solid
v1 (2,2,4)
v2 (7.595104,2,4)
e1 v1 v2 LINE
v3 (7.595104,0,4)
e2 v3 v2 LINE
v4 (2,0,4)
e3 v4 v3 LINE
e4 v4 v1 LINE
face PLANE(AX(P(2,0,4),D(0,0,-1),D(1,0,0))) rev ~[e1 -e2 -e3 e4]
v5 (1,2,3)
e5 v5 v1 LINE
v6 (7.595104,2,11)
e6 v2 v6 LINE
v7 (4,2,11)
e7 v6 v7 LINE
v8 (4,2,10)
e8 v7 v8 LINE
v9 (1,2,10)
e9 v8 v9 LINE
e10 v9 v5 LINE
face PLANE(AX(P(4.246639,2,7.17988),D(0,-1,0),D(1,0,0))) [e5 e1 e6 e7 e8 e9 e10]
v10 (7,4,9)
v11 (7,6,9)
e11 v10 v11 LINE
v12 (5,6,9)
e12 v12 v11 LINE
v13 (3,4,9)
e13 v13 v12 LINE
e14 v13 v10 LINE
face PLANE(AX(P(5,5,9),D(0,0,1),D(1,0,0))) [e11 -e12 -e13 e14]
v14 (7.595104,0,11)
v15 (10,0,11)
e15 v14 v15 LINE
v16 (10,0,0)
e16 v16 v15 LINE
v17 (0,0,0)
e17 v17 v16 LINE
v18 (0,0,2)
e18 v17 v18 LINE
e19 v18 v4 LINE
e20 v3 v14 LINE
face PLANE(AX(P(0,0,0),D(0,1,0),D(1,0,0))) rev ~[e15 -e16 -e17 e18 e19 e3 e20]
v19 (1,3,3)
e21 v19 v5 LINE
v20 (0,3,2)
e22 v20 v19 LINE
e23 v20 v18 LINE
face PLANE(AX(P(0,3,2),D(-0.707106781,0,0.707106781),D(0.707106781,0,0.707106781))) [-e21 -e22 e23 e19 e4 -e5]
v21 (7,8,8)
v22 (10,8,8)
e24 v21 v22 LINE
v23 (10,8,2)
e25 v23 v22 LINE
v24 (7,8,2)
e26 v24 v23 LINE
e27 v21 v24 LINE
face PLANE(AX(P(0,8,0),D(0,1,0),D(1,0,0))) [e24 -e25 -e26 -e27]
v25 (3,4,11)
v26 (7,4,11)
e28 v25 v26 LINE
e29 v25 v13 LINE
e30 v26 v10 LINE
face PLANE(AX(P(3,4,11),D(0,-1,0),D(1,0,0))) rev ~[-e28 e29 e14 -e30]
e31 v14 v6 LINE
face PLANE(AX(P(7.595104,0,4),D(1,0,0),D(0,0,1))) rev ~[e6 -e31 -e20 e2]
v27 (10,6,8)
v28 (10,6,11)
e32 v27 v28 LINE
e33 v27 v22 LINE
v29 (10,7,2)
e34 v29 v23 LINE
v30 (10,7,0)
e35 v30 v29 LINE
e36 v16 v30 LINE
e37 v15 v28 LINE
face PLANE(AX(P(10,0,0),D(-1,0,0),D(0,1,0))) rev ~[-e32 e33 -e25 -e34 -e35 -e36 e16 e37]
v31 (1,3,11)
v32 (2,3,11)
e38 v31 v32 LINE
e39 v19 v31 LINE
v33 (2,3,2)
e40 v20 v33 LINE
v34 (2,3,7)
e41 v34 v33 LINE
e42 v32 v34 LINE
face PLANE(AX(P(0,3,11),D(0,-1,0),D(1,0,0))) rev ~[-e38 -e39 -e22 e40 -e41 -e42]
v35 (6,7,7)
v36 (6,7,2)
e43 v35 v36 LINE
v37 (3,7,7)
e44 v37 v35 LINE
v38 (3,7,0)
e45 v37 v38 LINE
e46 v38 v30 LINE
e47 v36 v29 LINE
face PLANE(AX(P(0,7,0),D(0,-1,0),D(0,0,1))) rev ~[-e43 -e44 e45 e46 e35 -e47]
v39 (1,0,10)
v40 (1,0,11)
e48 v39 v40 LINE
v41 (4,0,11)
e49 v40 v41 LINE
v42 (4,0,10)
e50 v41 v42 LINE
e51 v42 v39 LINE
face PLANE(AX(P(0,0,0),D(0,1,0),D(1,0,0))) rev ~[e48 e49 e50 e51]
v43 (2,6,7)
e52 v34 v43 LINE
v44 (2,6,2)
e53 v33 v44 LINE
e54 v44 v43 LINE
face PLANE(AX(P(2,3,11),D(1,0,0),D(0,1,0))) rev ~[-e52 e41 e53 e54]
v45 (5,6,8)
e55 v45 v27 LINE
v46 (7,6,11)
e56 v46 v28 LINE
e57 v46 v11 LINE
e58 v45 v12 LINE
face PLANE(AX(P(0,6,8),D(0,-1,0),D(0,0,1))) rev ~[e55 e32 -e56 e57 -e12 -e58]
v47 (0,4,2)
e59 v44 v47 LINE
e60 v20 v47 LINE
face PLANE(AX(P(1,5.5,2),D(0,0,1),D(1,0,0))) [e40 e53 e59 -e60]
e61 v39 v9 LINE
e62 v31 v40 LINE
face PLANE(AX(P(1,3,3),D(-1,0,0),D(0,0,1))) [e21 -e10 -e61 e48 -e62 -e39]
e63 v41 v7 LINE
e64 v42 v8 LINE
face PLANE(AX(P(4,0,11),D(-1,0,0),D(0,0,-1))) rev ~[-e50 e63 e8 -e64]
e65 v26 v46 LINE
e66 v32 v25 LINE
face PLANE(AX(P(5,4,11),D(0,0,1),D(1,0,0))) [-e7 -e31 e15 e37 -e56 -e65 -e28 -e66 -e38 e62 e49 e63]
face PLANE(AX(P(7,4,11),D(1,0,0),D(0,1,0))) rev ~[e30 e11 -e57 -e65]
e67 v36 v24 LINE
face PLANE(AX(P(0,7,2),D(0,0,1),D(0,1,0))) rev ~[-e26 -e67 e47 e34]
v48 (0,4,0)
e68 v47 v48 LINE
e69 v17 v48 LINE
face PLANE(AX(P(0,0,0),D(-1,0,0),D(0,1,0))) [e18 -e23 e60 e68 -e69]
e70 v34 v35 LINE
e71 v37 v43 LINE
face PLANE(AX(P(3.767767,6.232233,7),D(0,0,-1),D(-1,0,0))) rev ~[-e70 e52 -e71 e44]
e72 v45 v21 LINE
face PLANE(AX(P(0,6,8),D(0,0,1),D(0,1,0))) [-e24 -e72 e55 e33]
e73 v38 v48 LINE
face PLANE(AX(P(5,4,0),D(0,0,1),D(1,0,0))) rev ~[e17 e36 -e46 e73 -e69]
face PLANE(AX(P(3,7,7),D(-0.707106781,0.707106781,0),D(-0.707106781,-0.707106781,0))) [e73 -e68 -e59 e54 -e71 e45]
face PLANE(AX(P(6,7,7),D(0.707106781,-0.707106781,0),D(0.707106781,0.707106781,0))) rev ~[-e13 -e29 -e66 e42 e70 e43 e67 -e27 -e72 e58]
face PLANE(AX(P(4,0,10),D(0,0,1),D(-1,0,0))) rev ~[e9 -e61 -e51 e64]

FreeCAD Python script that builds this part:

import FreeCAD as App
import Part
import Sketcher
from FreeCAD import Vector
Q = App.Units.Quantity

doc = App.newDocument("Part")
params = doc.addObject("Spreadsheet::Sheet", "Params")
for row, (alias, value) in enumerate([
    ("sketch1_width", "10 mm"),
    ("sketch1_height", "8 mm"),
    ("pad1_length", "11 mm"),
    ("sketch2_width", "1 mm"),
    ("sketch2_width2", "2 mm"),
    ("sketch2_height", "3 mm"),
    ("pocket1_length", "11 mm"),
    ("sketch3_width", "4 mm"),
    ("sketch3_height", "2 mm"),
    ("pocket2_length", "2 mm"),
    ("sketch4_width", "5 mm"),
    ("pocket3_length", "4 mm"),
    ("sketch5_width", "7 mm"),
    ("sketch5_width2", "6 mm"),
    ("sketch5_height", "1 mm"),
    ("pocket4_length", "5 mm"),
    ("sketch6_width", "2 mm"),
    ("sketch6_height", "5 mm"),
    ("pocket5_length", "9 mm"),
    ("sketch7_width", "3 mm"),
    ("pocket6_length", "7 mm"),
    ("sketch8_width", "1 mm"),
    ("sketch8_height", "9 mm"),
    ("sketch8_height2", "8 mm"),
    ("pocket7_length", "7 mm"),
    ("sketch9_width", "3 mm"),
    ("sketch9_height", "7 mm"),
    ("sketch9_height2", "1 mm"),
    ("pocket8_length", "2 mm"),
], start=1):
    params.set(f"A{row}", alias)
    params.set(f"B{row}", "=" + value)
    params.setAlias(f"B{row}", alias)

body = doc.addObject("PartDesign::Body", "Body")

sketch1 = body.newObject("Sketcher::SketchObject", "Sketch")
sketch1.AttachmentSupport = (doc.getObject("XY_Plane"), [""])
sketch1.MapMode = "FlatFace"
sketch1.addGeometry(Part.LineSegment(Vector(0, 8, 0), Vector(0, 0, 0)), False)
sketch1.addGeometry(Part.LineSegment(Vector(0, 0, 0), Vector(10, 0, 0)), False)
sketch1.addGeometry(Part.LineSegment(Vector(10, 0, 0), Vector(10, 8, 0)), False)
sketch1.addGeometry(Part.LineSegment(Vector(10, 8, 0), Vector(0, 8, 0)), False)
sketch1.addConstraint(Sketcher.Constraint("Coincident", 0, 2, 1, 1))
sketch1.addConstraint(Sketcher.Constraint("Coincident", 1, 2, 2, 1))
sketch1.addConstraint(Sketcher.Constraint("Coincident", 2, 2, 3, 1))
sketch1.addConstraint(Sketcher.Constraint("Coincident", 3, 2, 0, 1))
sketch1.addConstraint(Sketcher.Constraint("Vertical", 0))
sketch1.addConstraint(Sketcher.Constraint("Horizontal", 1))
sketch1.addConstraint(Sketcher.Constraint("Vertical", 2))
sketch1.addConstraint(Sketcher.Constraint("Horizontal", 3))
sketch1.addConstraint(Sketcher.Constraint("Coincident", 0, 2, -1, 1))
sketch1.addConstraint(Sketcher.Constraint("DistanceX", 1, 1, 1, 2, Q("10 mm")))
sketch1.addConstraint(Sketcher.Constraint("DistanceY", 0, 2, 0, 1, Q("8 mm")))
sketch1.setExpression("Constraints[9]", "Params.sketch1_width")
sketch1.setExpression("Constraints[10]", "Params.sketch1_height")
pad1 = body.newObject("PartDesign::Pad", "Pad")
pad1.Profile = sketch1
pad1.setExpression("Length", "Params.pad1_length")

sketch2 = body.newObject("Sketcher::SketchObject", "Sketch001")
sketch2.AttachmentSupport = (doc.getObject("YZ_Plane"), [""])
sketch2.MapMode = "FlatFace"
sketch2.addGeometry(Part.LineSegment(Vector(8, 0, 0), Vector(7, 0, 0)), False)
sketch2.addGeometry(Part.LineSegment(Vector(7, 0, 0), Vector(7, 2, 0)), False)
sketch2.addGeometry(Part.LineSegment(Vector(7, 2, 0), Vector(8, 2, 0)), False)
sketch2.addGeometry(Part.LineSegment(Vector(8, 2, 0), Vector(8, 0, 0)), False)
sketch2.addGeometry(Part.LineSegment(Vector(8, 8, 0), Vector(6, 8, 0)), False)
sketch2.addGeometry(Part.LineSegment(Vector(6, 8, 0), Vector(6, 11, 0)), False)
sketch2.addGeometry(Part.LineSegment(Vector(6, 11, 0), Vector(8, 11, 0)), False)
sketch2.addGeometry(Part.LineSegment(Vector(8, 11, 0), Vector(8, 8, 0)), False)
sketch2.addConstraint(Sketcher.Constraint("Coincident", 0, 2, 1, 1))
sketch2.addConstraint(Sketcher.Constraint("Coincident", 1, 2, 2, 1))
sketch2.addConstraint(Sketcher.Constraint("Coincident", 2, 2, 3, 1))
sketch2.addConstraint(Sketcher.Constraint("Coincident", 3, 2, 0, 1))
sketch2.addConstraint(Sketcher.Constraint("Coincident", 4, 2, 5, 1))
sketch2.addConstraint(Sketcher.Constraint("Coincident", 5, 2, 6, 1))
sketch2.addConstraint(Sketcher.Constraint("Coincident", 6, 2, 7, 1))
sketch2.addConstraint(Sketcher.Constraint("Coincident", 7, 2, 4, 1))
sketch2.addConstraint(Sketcher.Constraint("Horizontal", 0))
sketch2.addConstraint(Sketcher.Constraint("Vertical", 1))
sketch2.addConstraint(Sketcher.Constraint("Horizontal", 2))
sketch2.addConstraint(Sketcher.Constraint("Vertical", 3))
sketch2.addConstraint(Sketcher.Constraint("Horizontal", 4))
sketch2.addConstraint(Sketcher.Constraint("Vertical", 5))
sketch2.addConstraint(Sketcher.Constraint("Horizontal", 6))
sketch2.addConstraint(Sketcher.Constraint("Vertical", 7))
sketch2.addConstraint(Sketcher.Constraint("PointOnObject", 0, 2, -1))
sketch2.addConstraint(Sketcher.Constraint("Vertical", 3, 2, 6, 2))
sketch2.addConstraint(Sketcher.Constraint("Equal", 6, 1))
sketch2.addConstraint(Sketcher.Constraint("DistanceX", 0, 2, 0, 1, Q("1 mm")))
sketch2.addConstraint(Sketcher.Constraint("DistanceX", 4, 2, 4, 1, Q("2 mm")))
sketch2.addConstraint(Sketcher.Constraint("DistanceY", 5, 1, 5, 2, Q("3 mm")))
sketch2.addConstraint(Sketcher.Constraint("DistanceX", -1, 1, 0, 2, Q("7 mm")))
sketch2.addConstraint(Sketcher.Constraint("DistanceY", -1, 1, 4, 2, Q("8 mm")))
sketch2.setExpression("Constraints[19]", "Params.sketch2_width")
sketch2.setExpression("Constraints[20]", "Params.sketch2_width2")
sketch2.setExpression("Constraints[21]", "Params.sketch2_height")
pocket1 = body.newObject("PartDesign::Pocket", "Pocket")
pocket1.Profile = sketch2
pocket1.setExpression("Length", "Params.pocket1_length")
pocket1.Reversed = True

sketch3 = body.newObject("Sketcher::SketchObject", "Sketch002")
sketch3.AttachmentSupport = (doc.getObject("XY_Plane"), [""])
sketch3.MapMode = "FlatFace"
sketch3.AttachmentOffset = App.Placement(Vector(0, 0, 11), App.Rotation())
sketch3.addGeometry(Part.LineSegment(Vector(3, 6, 0), Vector(3, 4, 0)), False)
sketch3.addGeometry(Part.LineSegment(Vector(3, 4, 0), Vector(7, 4, 0)), False)
sketch3.addGeometry(Part.LineSegment(Vector(7, 4, 0), Vector(7, 6, 0)), False)
sketch3.addGeometry(Part.LineSegment(Vector(7, 6, 0), Vector(3, 6, 0)), False)
sketch3.addConstraint(Sketcher.Constraint("Coincident", 0, 2, 1, 1))
sketch3.addConstraint(Sketcher.Constraint("Coincident", 1, 2, 2, 1))
sketch3.addConstraint(Sketcher.Constraint("Coincident", 2, 2, 3, 1))
sketch3.addConstraint(Sketcher.Constraint("Coincident", 3, 2, 0, 1))
sketch3.addConstraint(Sketcher.Constraint("Vertical", 0))
sketch3.addConstraint(Sketcher.Constraint("Horizontal", 1))
sketch3.addConstraint(Sketcher.Constraint("Vertical", 2))
sketch3.addConstraint(Sketcher.Constraint("Horizontal", 3))
sketch3.addConstraint(Sketcher.Constraint("DistanceX", 1, 1, 1, 2, Q("4 mm")))
sketch3.addConstraint(Sketcher.Constraint("DistanceY", 0, 2, 0, 1, Q("2 mm")))
sketch3.addConstraint(Sketcher.Constraint("DistanceX", -1, 1, 0, 2, Q("3 mm")))
sketch3.addConstraint(Sketcher.Constraint("DistanceY", -1, 1, 0, 2, Q("4 mm")))
sketch3.setExpression("Constraints[8]", "Params.sketch3_width")
sketch3.setExpression("Constraints[9]", "Params.sketch3_height")
pocket2 = body.newObject("PartDesign::Pocket", "Pocket001")
pocket2.Profile = sketch3
pocket2.setExpression("Length", "Params.pocket2_length")

sketch4 = body.newObject("Sketcher::SketchObject", "Sketch003")
sketch4.AttachmentSupport = (doc.getObject("XY_Plane"), [""])
sketch4.MapMode = "FlatFace"
sketch4.AttachmentOffset = App.Placement(Vector(0, 0, 11), App.Rotation())
sketch4.addGeometry(Part.LineSegment(Vector(2, 3, 0), Vector(7, 8, 0)), False)
sketch4.addGeometry(Part.LineSegment(Vector(7, 8, 0), Vector(2, 8, 0)), False)
sketch4.addGeometry(Part.LineSegment(Vector(2, 8, 0), Vector(2, 3, 0)), False)
sketch4.addConstraint(Sketcher.Constraint("Coincident", 0, 2, 1, 1))
sketch4.addConstraint(Sketcher.Constraint("Coincident", 1, 2, 2, 1))
sketch4.addConstraint(Sketcher.Constraint("Coincident", 2, 2, 0, 1))
sketch4.addConstraint(Sketcher.Constraint("Horizontal", 1))
sketch4.addConstraint(Sketcher.Constraint("Vertical", 2))
sketch4.addConstraint(Sketcher.Constraint("Equal", 1, 2))
sketch4.addConstraint(Sketcher.Constraint("DistanceX", 1, 2, 1, 1, Q("5 mm")))
sketch4.addConstraint(Sketcher.Constraint("DistanceX", -1, 1, 0, 2, Q("7 mm")))
sketch4.addConstraint(Sketcher.Constraint("DistanceY", -1, 1, 0, 2, Q("8 mm")))
sketch4.setExpression("Constraints[6]", "Params.sketch4_width")
pocket3 = body.newObject("PartDesign::Pocket", "Pocket002")
pocket3.Profile = sketch4
pocket3.setExpression("Length", "Params.pocket3_length")

sketch5 = body.newObject("Sketcher::SketchObject", "Sketch004")
sketch5.AttachmentSupport = (doc.getObject("XY_Plane"), [""])
sketch5.MapMode = "FlatFace"
sketch5.AttachmentOffset = App.Placement(Vector(0, 0, 7), App.Rotation())
sketch5.addGeometry(Part.LineSegment(Vector(6, 7, 0), Vector(7, 8, 0)), False)
sketch5.addGeometry(Part.LineSegment(Vector(7, 8, 0), Vector(0, 8, 0)), False)
sketch5.addGeometry(Part.LineSegment(Vector(0, 8, 0), Vector(0, 7, 0)), False)
sketch5.addGeometry(Part.LineSegment(Vector(0, 7, 0), Vector(6, 7, 0)), False)
sketch5.addConstraint(Sketcher.Constraint("Coincident", 0, 2, 1, 1))
sketch5.addConstraint(Sketcher.Constraint("Coincident", 1, 2, 2, 1))
sketch5.addConstraint(Sketcher.Constraint("Coincident", 2, 2, 3, 1))
sketch5.addConstraint(Sketcher.Constraint("Coincident", 3, 2, 0, 1))
sketch5.addConstraint(Sketcher.Constraint("Horizontal", 1))
sketch5.addConstraint(Sketcher.Constraint("Vertical", 2))
sketch5.addConstraint(Sketcher.Constraint("Horizontal", 3))
sketch5.addConstraint(Sketcher.Constraint("PointOnObject", 1, 2, -2))
sketch5.addConstraint(Sketcher.Constraint("DistanceX", 1, 2, 1, 1, Q("7 mm")))
sketch5.addConstraint(Sketcher.Constraint("DistanceX", 3, 1, 3, 2, Q("6 mm")))
sketch5.addConstraint(Sketcher.Constraint("DistanceY", 2, 2, 2, 1, Q("1 mm")))
sketch5.addConstraint(Sketcher.Constraint("DistanceY", -1, 1, 0, 2, Q("8 mm")))
sketch5.setExpression("Constraints[8]", "Params.sketch5_width")
sketch5.setExpression("Constraints[9]", "Params.sketch5_width2")
sketch5.setExpression("Constraints[10]", "Params.sketch5_height")
pocket4 = body.newObject("PartDesign::Pocket", "Pocket003")
pocket4.Profile = sketch5
pocket4.setExpression("Length", "Params.pocket4_length")

sketch6 = body.newObject("Sketcher::SketchObject", "Sketch005")
sketch6.AttachmentSupport = (doc.getObject("XY_Plane"), [""])
sketch6.MapMode = "FlatFace"
sketch6.AttachmentOffset = App.Placement(Vector(0, 0, 11), App.Rotation())
sketch6.addGeometry(Part.LineSegment(Vector(0, 8, 0), Vector(0, 3, 0)), False)
sketch6.addGeometry(Part.LineSegment(Vector(0, 3, 0), Vector(2, 3, 0)), False)
sketch6.addGeometry(Part.LineSegment(Vector(2, 3, 0), Vector(2, 8, 0)), False)
sketch6.addGeometry(Part.LineSegment(Vector(2, 8, 0), Vector(0, 8, 0)), False)
sketch6.addConstraint(Sketcher.Constraint("Coincident", 0, 2, 1, 1))
sketch6.addConstraint(Sketcher.Constraint("Coincident", 1, 2, 2, 1))
sketch6.addConstraint(Sketcher.Constraint("Coincident", 2, 2, 3, 1))
sketch6.addConstraint(Sketcher.Constraint("Coincident", 3, 2, 0, 1))
sketch6.addConstraint(Sketcher.Constraint("Vertical", 0))
sketch6.addConstraint(Sketcher.Constraint("Horizontal", 1))
sketch6.addConstraint(Sketcher.Constraint("Vertical", 2))
sketch6.addConstraint(Sketcher.Constraint("Horizontal", 3))
sketch6.addConstraint(Sketcher.Constraint("PointOnObject", 0, 2, -2))
sketch6.addConstraint(Sketcher.Constraint("DistanceX", 1, 1, 1, 2, Q("2 mm")))
sketch6.addConstraint(Sketcher.Constraint("DistanceY", 0, 2, 0, 1, Q("5 mm")))
sketch6.addConstraint(Sketcher.Constraint("DistanceY", -1, 1, 0, 2, Q("3 mm")))
sketch6.setExpression("Constraints[9]", "Params.sketch6_width")
sketch6.setExpression("Constraints[10]", "Params.sketch6_height")
pocket5 = body.newObject("PartDesign::Pocket", "Pocket004")
pocket5.Profile = sketch6
pocket5.setExpression("Length", "Params.pocket5_length")

sketch7 = body.newObject("Sketcher::SketchObject", "Sketch006")
sketch7.AttachmentSupport = (doc.getObject("XY_Plane"), [""])
sketch7.MapMode = "FlatFace"
sketch7.AttachmentOffset = App.Placement(Vector(0, 0, 7), App.Rotation())
sketch7.addGeometry(Part.LineSegment(Vector(0, 4, 0), Vector(3, 7, 0)), False)
sketch7.addGeometry(Part.LineSegment(Vector(3, 7, 0), Vector(0, 7, 0)), False)
sketch7.addGeometry(Part.LineSegment(Vector(0, 7, 0), Vector(0, 4, 0)), False)
sketch7.addConstraint(Sketcher.Constraint("Coincident", 0, 2, 1, 1))
sketch7.addConstraint(Sketcher.Constraint("Coincident", 1, 2, 2, 1))
sketch7.addConstraint(Sketcher.Constraint("Coincident", 2, 2, 0, 1))
sketch7.addConstraint(Sketcher.Constraint("Horizontal", 1))
sketch7.addConstraint(Sketcher.Constraint("Vertical", 2))
sketch7.addConstraint(Sketcher.Constraint("PointOnObject", 1, 2, -2))
sketch7.addConstraint(Sketcher.Constraint("Equal", 1, 2))
sketch7.addConstraint(Sketcher.Constraint("DistanceX", 1, 2, 1, 1, Q("3 mm")))
sketch7.addConstraint(Sketcher.Constraint("DistanceY", -1, 1, 0, 2, Q("7 mm")))
sketch7.setExpression("Constraints[7]", "Params.sketch7_width")
pocket6 = body.newObject("PartDesign::Pocket", "Pocket005")
pocket6.Profile = sketch7
pocket6.setExpression("Length", "Params.pocket6_length")

sketch8 = body.newObject("Sketcher::SketchObject", "Sketch007")
sketch8.AttachmentSupport = (doc.getObject("XZ_Plane"), [""])
sketch8.MapMode = "FlatFace"
sketch8.AttachmentOffset = App.Placement(Vector(0, 0, -3), App.Rotation())
sketch8.addGeometry(Part.LineSegment(Vector(1, 3, 0), Vector(0, 2, 0)), False)
sketch8.addGeometry(Part.LineSegment(Vector(0, 2, 0), Vector(0, 11, 0)), False)
sketch8.addGeometry(Part.LineSegment(Vector(0, 11, 0), Vector(1, 11, 0)), False)
sketch8.addGeometry(Part.LineSegment(Vector(1, 11, 0), Vector(1, 3, 0)), False)
sketch8.addConstraint(Sketcher.Constraint("Coincident", 0, 2, 1, 1))
sketch8.addConstraint(Sketcher.Constraint("Coincident", 1, 2, 2, 1))
sketch8.addConstraint(Sketcher.Constraint("Coincident", 2, 2, 3, 1))
sketch8.addConstraint(Sketcher.Constraint("Coincident", 3, 2, 0, 1))
sketch8.addConstraint(Sketcher.Constraint("Vertical", 1))
sketch8.addConstraint(Sketcher.Constraint("Horizontal", 2))
sketch8.addConstraint(Sketcher.Constraint("Vertical", 3))
sketch8.addConstraint(Sketcher.Constraint("PointOnObject", 0, 2, -2))
sketch8.addConstraint(Sketcher.Constraint("DistanceX", 2, 1, 2, 2, Q("1 mm")))
sketch8.addConstraint(Sketcher.Constraint("DistanceY", 1, 1, 1, 2, Q("9 mm")))
sketch8.addConstraint(Sketcher.Constraint("DistanceY", 3, 2, 3, 1, Q("8 mm")))
sketch8.addConstraint(Sketcher.Constraint("DistanceY", -1, 1, 0, 2, Q("2 mm")))
sketch8.setExpression("Constraints[8]", "Params.sketch8_width")
sketch8.setExpression("Constraints[9]", "Params.sketch8_height")
sketch8.setExpression("Constraints[10]", "Params.sketch8_height2")
pocket7 = body.newObject("PartDesign::Pocket", "Pocket006")
pocket7.Profile = sketch8
pocket7.setExpression("Length", "Params.pocket7_length")
pocket7.Reversed = True

sketch9 = body.newObject("Sketcher::SketchObject", "Sketch008")
sketch9.AttachmentSupport = (doc.getObject("XZ_Plane"), [""])
sketch9.MapMode = "FlatFace"
sketch9.addGeometry(Part.LineSegment(Vector(1, 3, 0), Vector(2, 4, 0)), False)
sketch9.addGeometry(Part.LineSegment(Vector(2, 4, 0), Vector(7.6, 4, 0)), False)
sketch9.addGeometry(Part.LineSegment(Vector(7.6, 4, 0), Vector(7.6, 11, 0)), False)
sketch9.addGeometry(Part.LineSegment(Vector(7.6, 11, 0), Vector(4, 11, 0)), False)
sketch9.addGeometry(Part.LineSegment(Vector(4, 11, 0), Vector(4, 10, 0)), False)
sketch9.addGeometry(Part.LineSegment(Vector(4, 10, 0), Vector(1, 10, 0)), False)
sketch9.addGeometry(Part.LineSegment(Vector(1, 10, 0), Vector(1, 3, 0)), False)
sketch9.addConstraint(Sketcher.Constraint("Coincident", 0, 2, 1, 1))
sketch9.addConstraint(Sketcher.Constraint("Coincident", 1, 2, 2, 1))
sketch9.addConstraint(Sketcher.Constraint("Coincident", 2, 2, 3, 1))
sketch9.addConstraint(Sketcher.Constraint("Coincident", 3, 2, 4, 1))
sketch9.addConstraint(Sketcher.Constraint("Coincident", 4, 2, 5, 1))
sketch9.addConstraint(Sketcher.Constraint("Coincident", 5, 2, 6, 1))
sketch9.addConstraint(Sketcher.Constraint("Coincident", 6, 2, 0, 1))
sketch9.addConstraint(Sketcher.Constraint("Horizontal", 1))
sketch9.addConstraint(Sketcher.Constraint("Vertical", 2))
sketch9.addConstraint(Sketcher.Constraint("Horizontal", 3))
sketch9.addConstraint(Sketcher.Constraint("Vertical", 4))
sketch9.addConstraint(Sketcher.Constraint("Horizontal", 5))
sketch9.addConstraint(Sketcher.Constraint("Vertical", 6))
sketch9.addConstraint(Sketcher.Constraint("Equal", 2, 6))
sketch9.addConstraint(Sketcher.Constraint("DistanceX", 5, 2, 5, 1, Q("3 mm")))
sketch9.addConstraint(Sketcher.Constraint("DistanceY", 2, 1, 2, 2, Q("7 mm")))
sketch9.addConstraint(Sketcher.Constraint("DistanceY", 4, 2, 4, 1, Q("1 mm")))
sketch9.addConstraint(Sketcher.Constraint("Angle", 0, Q("45 deg")))
sketch9.addConstraint(Sketcher.Constraint("DistanceX", -1, 1, 0, 2, Q("2 mm")))
sketch9.addConstraint(Sketcher.Constraint("DistanceY", -1, 1, 0, 2, Q("4 mm")))
sketch9.addConstraint(Sketcher.Constraint("DistanceX", 1, 1, 1, 2, Q("5.595104 mm")))
sketch9.setExpression("Constraints[14]", "Params.sketch9_width")
sketch9.setExpression("Constraints[15]", "Params.sketch9_height")
sketch9.setExpression("Constraints[16]", "Params.sketch9_height2")
pocket8 = body.newObject("PartDesign::Pocket", "Pocket007")
pocket8.Profile = sketch9
pocket8.setExpression("Length", "Params.pocket8_length")

doc.recompute()
